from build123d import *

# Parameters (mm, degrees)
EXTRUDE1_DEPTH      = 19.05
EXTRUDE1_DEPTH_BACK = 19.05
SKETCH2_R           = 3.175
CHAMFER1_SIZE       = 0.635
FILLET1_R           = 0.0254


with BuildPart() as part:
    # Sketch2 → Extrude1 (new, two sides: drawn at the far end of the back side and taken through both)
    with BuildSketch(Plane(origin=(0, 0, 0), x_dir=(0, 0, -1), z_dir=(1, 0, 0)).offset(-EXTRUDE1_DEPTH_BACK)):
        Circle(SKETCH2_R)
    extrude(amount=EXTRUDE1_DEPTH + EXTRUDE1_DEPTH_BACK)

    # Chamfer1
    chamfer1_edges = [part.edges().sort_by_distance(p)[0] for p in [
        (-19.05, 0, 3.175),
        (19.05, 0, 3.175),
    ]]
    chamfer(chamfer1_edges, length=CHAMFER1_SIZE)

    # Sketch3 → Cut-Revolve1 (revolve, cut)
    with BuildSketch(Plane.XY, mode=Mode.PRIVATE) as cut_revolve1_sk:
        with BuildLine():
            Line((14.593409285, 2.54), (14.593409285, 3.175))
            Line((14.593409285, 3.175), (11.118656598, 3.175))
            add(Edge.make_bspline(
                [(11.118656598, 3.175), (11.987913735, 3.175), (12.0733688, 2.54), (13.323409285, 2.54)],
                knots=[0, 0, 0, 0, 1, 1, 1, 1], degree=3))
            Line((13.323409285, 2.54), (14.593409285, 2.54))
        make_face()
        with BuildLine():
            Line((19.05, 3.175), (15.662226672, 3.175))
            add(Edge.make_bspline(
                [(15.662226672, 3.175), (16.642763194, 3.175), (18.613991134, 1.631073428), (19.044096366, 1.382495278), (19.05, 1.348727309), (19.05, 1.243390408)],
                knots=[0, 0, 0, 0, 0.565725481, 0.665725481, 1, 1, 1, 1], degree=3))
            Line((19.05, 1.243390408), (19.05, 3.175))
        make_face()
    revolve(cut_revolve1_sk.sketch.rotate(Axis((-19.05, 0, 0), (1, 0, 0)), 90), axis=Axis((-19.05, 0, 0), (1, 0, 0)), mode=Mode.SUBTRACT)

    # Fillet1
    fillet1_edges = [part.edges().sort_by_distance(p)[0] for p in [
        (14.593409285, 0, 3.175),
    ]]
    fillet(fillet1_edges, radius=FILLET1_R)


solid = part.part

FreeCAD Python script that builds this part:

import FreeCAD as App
import Part
import Sketcher

V = App.Vector
Q = App.Units.Quantity


def edges_at(feature, points):
    """Names of the edges that pass closest to the given points."""
    edges = feature.Shape.Edges
    near = lambda p: min(range(len(edges)), key=lambda i: edges[i].distToShape(Part.Vertex(*p))[0])
    return sorted({f"Edge{near(p) + 1}" for p in points})

doc = App.newDocument("Part")
body = doc.addObject("PartDesign::Body", "Body")

# Sketch on YZ plane
sketch1 = doc.addObject("Sketcher::SketchObject", "Sketch")
body.addObject(sketch1)
sketch1.AttachmentSupport = (doc.YZ_Plane, [""])
sketch1.MapMode = "FlatFace"
sketch1.addGeometry(Part.Circle(V(0, 0, 0), V(0, 0, 1), 3.175), False)
sketch1.addConstraint([
    Sketcher.Constraint("Coincident", 0, 3, -1, 1),
    Sketcher.Constraint("Diameter", 0, Q("0.25 in")),
])
pad1 = doc.addObject("PartDesign::Pad", "Pad")
body.addObject(pad1)
pad1.Profile = sketch1
pad1.Type = "TwoLengths"
pad1.Length = Q("0.75 in")
pad1.Length2 = Q("0.75 in")
doc.recompute()

chamfer = doc.addObject("PartDesign::Chamfer", "Chamfer")
body.addObject(chamfer)
chamfer.Base = (pad1, edges_at(pad1, [(-19.05, 0, 3.175), (19.05, 0, 3.175)]))
chamfer.Size = Q("0.025 in")

# Sketch on XY plane
sketch2 = doc.addObject("Sketcher::SketchObject", "Sketch001")
body.addObject(sketch2)
sketch2.AttachmentSupport = (doc.XY_Plane, [""])
sketch2.MapMode = "FlatFace"
sketch2.addGeometry([
    Part.LineSegment(V(14.593409, 2.54, 0), V(14.593409, 3.175, 0)),  # 0
    Part.LineSegment(V(14.593409, 3.175, 0), V(11.118657, 3.175, 0)),  # 1
    Part.BSplineCurve([V(11.118657, 3.175, 0), V(11.987914, 3.175, 0), V(12.073369, 2.54, 0), V(13.323409, 2.54, 0)], [4, 4], [0, 1], False, 3, [1, 1, 1, 1], False),  # 2
    Part.LineSegment(V(13.323409, 2.54, 0), V(14.593409, 2.54, 0)),  # 3
    Part.LineSegment(V(19.05, 3.175, 0), V(15.662227, 3.175, 0)),  # 4
    Part.BSplineCurve([V(15.662227, 3.175, 0), V(16.642763, 3.175, 0), V(18.613991, 1.631073, 0), V(19.044096, 1.382495, 0), V(19.05, 1.348727, 0), V(19.05, 1.24339, 0)], [4, 1, 1, 4], [0, 0.565725481, 0.665725481, 1], False, 3, [1, 1, 1, 1, 1, 1], False),  # 5
    Part.LineSegment(V(19.05, 1.24339, 0), V(19.05, 3.175, 0)),  # 6
], False)
sketch2.addConstraint([
    Sketcher.Constraint("Block", 2),
    Sketcher.Constraint("Block", 5),
    Sketcher.Constraint("Coincident", 0, 2, 1, 1),
    Sketcher.Constraint("Coincident", 1, 2, 2, 1),
    Sketcher.Constraint("Coincident", 2, 2, 3, 1),
    Sketcher.Constraint("Coincident", 3, 2, 0, 1),
    Sketcher.Constraint("Coincident", 4, 2, 5, 1),
    Sketcher.Constraint("Coincident", 5, 2, 6, 1),
    Sketcher.Constraint("Coincident", 6, 2, 4, 1),
    Sketcher.Constraint("Vertical", 0),
    Sketcher.Constraint("Horizontal", 1),
    Sketcher.Constraint("Horizontal", 3),
    Sketcher.Constraint("Horizontal", 4),
    Sketcher.Constraint("Vertical", 6),
    Sketcher.Constraint("DistanceX", 3, 1, 3, 2, Q("0.05 in")),
])
groove = doc.addObject("PartDesign::Groove", "Groove")
body.addObject(groove)
groove.Profile = sketch2
groove.ReferenceAxis = (sketch2, ["H_Axis"])
groove.Angle = 360
doc.recompute()

fillet = doc.addObject("PartDesign::Fillet", "Fillet")
body.addObject(fillet)
fillet.Base = (groove, edges_at(groove, [(14.593, 0, 3.175)]))
fillet.Radius = Q("0.001 in")

doc.recompute()
